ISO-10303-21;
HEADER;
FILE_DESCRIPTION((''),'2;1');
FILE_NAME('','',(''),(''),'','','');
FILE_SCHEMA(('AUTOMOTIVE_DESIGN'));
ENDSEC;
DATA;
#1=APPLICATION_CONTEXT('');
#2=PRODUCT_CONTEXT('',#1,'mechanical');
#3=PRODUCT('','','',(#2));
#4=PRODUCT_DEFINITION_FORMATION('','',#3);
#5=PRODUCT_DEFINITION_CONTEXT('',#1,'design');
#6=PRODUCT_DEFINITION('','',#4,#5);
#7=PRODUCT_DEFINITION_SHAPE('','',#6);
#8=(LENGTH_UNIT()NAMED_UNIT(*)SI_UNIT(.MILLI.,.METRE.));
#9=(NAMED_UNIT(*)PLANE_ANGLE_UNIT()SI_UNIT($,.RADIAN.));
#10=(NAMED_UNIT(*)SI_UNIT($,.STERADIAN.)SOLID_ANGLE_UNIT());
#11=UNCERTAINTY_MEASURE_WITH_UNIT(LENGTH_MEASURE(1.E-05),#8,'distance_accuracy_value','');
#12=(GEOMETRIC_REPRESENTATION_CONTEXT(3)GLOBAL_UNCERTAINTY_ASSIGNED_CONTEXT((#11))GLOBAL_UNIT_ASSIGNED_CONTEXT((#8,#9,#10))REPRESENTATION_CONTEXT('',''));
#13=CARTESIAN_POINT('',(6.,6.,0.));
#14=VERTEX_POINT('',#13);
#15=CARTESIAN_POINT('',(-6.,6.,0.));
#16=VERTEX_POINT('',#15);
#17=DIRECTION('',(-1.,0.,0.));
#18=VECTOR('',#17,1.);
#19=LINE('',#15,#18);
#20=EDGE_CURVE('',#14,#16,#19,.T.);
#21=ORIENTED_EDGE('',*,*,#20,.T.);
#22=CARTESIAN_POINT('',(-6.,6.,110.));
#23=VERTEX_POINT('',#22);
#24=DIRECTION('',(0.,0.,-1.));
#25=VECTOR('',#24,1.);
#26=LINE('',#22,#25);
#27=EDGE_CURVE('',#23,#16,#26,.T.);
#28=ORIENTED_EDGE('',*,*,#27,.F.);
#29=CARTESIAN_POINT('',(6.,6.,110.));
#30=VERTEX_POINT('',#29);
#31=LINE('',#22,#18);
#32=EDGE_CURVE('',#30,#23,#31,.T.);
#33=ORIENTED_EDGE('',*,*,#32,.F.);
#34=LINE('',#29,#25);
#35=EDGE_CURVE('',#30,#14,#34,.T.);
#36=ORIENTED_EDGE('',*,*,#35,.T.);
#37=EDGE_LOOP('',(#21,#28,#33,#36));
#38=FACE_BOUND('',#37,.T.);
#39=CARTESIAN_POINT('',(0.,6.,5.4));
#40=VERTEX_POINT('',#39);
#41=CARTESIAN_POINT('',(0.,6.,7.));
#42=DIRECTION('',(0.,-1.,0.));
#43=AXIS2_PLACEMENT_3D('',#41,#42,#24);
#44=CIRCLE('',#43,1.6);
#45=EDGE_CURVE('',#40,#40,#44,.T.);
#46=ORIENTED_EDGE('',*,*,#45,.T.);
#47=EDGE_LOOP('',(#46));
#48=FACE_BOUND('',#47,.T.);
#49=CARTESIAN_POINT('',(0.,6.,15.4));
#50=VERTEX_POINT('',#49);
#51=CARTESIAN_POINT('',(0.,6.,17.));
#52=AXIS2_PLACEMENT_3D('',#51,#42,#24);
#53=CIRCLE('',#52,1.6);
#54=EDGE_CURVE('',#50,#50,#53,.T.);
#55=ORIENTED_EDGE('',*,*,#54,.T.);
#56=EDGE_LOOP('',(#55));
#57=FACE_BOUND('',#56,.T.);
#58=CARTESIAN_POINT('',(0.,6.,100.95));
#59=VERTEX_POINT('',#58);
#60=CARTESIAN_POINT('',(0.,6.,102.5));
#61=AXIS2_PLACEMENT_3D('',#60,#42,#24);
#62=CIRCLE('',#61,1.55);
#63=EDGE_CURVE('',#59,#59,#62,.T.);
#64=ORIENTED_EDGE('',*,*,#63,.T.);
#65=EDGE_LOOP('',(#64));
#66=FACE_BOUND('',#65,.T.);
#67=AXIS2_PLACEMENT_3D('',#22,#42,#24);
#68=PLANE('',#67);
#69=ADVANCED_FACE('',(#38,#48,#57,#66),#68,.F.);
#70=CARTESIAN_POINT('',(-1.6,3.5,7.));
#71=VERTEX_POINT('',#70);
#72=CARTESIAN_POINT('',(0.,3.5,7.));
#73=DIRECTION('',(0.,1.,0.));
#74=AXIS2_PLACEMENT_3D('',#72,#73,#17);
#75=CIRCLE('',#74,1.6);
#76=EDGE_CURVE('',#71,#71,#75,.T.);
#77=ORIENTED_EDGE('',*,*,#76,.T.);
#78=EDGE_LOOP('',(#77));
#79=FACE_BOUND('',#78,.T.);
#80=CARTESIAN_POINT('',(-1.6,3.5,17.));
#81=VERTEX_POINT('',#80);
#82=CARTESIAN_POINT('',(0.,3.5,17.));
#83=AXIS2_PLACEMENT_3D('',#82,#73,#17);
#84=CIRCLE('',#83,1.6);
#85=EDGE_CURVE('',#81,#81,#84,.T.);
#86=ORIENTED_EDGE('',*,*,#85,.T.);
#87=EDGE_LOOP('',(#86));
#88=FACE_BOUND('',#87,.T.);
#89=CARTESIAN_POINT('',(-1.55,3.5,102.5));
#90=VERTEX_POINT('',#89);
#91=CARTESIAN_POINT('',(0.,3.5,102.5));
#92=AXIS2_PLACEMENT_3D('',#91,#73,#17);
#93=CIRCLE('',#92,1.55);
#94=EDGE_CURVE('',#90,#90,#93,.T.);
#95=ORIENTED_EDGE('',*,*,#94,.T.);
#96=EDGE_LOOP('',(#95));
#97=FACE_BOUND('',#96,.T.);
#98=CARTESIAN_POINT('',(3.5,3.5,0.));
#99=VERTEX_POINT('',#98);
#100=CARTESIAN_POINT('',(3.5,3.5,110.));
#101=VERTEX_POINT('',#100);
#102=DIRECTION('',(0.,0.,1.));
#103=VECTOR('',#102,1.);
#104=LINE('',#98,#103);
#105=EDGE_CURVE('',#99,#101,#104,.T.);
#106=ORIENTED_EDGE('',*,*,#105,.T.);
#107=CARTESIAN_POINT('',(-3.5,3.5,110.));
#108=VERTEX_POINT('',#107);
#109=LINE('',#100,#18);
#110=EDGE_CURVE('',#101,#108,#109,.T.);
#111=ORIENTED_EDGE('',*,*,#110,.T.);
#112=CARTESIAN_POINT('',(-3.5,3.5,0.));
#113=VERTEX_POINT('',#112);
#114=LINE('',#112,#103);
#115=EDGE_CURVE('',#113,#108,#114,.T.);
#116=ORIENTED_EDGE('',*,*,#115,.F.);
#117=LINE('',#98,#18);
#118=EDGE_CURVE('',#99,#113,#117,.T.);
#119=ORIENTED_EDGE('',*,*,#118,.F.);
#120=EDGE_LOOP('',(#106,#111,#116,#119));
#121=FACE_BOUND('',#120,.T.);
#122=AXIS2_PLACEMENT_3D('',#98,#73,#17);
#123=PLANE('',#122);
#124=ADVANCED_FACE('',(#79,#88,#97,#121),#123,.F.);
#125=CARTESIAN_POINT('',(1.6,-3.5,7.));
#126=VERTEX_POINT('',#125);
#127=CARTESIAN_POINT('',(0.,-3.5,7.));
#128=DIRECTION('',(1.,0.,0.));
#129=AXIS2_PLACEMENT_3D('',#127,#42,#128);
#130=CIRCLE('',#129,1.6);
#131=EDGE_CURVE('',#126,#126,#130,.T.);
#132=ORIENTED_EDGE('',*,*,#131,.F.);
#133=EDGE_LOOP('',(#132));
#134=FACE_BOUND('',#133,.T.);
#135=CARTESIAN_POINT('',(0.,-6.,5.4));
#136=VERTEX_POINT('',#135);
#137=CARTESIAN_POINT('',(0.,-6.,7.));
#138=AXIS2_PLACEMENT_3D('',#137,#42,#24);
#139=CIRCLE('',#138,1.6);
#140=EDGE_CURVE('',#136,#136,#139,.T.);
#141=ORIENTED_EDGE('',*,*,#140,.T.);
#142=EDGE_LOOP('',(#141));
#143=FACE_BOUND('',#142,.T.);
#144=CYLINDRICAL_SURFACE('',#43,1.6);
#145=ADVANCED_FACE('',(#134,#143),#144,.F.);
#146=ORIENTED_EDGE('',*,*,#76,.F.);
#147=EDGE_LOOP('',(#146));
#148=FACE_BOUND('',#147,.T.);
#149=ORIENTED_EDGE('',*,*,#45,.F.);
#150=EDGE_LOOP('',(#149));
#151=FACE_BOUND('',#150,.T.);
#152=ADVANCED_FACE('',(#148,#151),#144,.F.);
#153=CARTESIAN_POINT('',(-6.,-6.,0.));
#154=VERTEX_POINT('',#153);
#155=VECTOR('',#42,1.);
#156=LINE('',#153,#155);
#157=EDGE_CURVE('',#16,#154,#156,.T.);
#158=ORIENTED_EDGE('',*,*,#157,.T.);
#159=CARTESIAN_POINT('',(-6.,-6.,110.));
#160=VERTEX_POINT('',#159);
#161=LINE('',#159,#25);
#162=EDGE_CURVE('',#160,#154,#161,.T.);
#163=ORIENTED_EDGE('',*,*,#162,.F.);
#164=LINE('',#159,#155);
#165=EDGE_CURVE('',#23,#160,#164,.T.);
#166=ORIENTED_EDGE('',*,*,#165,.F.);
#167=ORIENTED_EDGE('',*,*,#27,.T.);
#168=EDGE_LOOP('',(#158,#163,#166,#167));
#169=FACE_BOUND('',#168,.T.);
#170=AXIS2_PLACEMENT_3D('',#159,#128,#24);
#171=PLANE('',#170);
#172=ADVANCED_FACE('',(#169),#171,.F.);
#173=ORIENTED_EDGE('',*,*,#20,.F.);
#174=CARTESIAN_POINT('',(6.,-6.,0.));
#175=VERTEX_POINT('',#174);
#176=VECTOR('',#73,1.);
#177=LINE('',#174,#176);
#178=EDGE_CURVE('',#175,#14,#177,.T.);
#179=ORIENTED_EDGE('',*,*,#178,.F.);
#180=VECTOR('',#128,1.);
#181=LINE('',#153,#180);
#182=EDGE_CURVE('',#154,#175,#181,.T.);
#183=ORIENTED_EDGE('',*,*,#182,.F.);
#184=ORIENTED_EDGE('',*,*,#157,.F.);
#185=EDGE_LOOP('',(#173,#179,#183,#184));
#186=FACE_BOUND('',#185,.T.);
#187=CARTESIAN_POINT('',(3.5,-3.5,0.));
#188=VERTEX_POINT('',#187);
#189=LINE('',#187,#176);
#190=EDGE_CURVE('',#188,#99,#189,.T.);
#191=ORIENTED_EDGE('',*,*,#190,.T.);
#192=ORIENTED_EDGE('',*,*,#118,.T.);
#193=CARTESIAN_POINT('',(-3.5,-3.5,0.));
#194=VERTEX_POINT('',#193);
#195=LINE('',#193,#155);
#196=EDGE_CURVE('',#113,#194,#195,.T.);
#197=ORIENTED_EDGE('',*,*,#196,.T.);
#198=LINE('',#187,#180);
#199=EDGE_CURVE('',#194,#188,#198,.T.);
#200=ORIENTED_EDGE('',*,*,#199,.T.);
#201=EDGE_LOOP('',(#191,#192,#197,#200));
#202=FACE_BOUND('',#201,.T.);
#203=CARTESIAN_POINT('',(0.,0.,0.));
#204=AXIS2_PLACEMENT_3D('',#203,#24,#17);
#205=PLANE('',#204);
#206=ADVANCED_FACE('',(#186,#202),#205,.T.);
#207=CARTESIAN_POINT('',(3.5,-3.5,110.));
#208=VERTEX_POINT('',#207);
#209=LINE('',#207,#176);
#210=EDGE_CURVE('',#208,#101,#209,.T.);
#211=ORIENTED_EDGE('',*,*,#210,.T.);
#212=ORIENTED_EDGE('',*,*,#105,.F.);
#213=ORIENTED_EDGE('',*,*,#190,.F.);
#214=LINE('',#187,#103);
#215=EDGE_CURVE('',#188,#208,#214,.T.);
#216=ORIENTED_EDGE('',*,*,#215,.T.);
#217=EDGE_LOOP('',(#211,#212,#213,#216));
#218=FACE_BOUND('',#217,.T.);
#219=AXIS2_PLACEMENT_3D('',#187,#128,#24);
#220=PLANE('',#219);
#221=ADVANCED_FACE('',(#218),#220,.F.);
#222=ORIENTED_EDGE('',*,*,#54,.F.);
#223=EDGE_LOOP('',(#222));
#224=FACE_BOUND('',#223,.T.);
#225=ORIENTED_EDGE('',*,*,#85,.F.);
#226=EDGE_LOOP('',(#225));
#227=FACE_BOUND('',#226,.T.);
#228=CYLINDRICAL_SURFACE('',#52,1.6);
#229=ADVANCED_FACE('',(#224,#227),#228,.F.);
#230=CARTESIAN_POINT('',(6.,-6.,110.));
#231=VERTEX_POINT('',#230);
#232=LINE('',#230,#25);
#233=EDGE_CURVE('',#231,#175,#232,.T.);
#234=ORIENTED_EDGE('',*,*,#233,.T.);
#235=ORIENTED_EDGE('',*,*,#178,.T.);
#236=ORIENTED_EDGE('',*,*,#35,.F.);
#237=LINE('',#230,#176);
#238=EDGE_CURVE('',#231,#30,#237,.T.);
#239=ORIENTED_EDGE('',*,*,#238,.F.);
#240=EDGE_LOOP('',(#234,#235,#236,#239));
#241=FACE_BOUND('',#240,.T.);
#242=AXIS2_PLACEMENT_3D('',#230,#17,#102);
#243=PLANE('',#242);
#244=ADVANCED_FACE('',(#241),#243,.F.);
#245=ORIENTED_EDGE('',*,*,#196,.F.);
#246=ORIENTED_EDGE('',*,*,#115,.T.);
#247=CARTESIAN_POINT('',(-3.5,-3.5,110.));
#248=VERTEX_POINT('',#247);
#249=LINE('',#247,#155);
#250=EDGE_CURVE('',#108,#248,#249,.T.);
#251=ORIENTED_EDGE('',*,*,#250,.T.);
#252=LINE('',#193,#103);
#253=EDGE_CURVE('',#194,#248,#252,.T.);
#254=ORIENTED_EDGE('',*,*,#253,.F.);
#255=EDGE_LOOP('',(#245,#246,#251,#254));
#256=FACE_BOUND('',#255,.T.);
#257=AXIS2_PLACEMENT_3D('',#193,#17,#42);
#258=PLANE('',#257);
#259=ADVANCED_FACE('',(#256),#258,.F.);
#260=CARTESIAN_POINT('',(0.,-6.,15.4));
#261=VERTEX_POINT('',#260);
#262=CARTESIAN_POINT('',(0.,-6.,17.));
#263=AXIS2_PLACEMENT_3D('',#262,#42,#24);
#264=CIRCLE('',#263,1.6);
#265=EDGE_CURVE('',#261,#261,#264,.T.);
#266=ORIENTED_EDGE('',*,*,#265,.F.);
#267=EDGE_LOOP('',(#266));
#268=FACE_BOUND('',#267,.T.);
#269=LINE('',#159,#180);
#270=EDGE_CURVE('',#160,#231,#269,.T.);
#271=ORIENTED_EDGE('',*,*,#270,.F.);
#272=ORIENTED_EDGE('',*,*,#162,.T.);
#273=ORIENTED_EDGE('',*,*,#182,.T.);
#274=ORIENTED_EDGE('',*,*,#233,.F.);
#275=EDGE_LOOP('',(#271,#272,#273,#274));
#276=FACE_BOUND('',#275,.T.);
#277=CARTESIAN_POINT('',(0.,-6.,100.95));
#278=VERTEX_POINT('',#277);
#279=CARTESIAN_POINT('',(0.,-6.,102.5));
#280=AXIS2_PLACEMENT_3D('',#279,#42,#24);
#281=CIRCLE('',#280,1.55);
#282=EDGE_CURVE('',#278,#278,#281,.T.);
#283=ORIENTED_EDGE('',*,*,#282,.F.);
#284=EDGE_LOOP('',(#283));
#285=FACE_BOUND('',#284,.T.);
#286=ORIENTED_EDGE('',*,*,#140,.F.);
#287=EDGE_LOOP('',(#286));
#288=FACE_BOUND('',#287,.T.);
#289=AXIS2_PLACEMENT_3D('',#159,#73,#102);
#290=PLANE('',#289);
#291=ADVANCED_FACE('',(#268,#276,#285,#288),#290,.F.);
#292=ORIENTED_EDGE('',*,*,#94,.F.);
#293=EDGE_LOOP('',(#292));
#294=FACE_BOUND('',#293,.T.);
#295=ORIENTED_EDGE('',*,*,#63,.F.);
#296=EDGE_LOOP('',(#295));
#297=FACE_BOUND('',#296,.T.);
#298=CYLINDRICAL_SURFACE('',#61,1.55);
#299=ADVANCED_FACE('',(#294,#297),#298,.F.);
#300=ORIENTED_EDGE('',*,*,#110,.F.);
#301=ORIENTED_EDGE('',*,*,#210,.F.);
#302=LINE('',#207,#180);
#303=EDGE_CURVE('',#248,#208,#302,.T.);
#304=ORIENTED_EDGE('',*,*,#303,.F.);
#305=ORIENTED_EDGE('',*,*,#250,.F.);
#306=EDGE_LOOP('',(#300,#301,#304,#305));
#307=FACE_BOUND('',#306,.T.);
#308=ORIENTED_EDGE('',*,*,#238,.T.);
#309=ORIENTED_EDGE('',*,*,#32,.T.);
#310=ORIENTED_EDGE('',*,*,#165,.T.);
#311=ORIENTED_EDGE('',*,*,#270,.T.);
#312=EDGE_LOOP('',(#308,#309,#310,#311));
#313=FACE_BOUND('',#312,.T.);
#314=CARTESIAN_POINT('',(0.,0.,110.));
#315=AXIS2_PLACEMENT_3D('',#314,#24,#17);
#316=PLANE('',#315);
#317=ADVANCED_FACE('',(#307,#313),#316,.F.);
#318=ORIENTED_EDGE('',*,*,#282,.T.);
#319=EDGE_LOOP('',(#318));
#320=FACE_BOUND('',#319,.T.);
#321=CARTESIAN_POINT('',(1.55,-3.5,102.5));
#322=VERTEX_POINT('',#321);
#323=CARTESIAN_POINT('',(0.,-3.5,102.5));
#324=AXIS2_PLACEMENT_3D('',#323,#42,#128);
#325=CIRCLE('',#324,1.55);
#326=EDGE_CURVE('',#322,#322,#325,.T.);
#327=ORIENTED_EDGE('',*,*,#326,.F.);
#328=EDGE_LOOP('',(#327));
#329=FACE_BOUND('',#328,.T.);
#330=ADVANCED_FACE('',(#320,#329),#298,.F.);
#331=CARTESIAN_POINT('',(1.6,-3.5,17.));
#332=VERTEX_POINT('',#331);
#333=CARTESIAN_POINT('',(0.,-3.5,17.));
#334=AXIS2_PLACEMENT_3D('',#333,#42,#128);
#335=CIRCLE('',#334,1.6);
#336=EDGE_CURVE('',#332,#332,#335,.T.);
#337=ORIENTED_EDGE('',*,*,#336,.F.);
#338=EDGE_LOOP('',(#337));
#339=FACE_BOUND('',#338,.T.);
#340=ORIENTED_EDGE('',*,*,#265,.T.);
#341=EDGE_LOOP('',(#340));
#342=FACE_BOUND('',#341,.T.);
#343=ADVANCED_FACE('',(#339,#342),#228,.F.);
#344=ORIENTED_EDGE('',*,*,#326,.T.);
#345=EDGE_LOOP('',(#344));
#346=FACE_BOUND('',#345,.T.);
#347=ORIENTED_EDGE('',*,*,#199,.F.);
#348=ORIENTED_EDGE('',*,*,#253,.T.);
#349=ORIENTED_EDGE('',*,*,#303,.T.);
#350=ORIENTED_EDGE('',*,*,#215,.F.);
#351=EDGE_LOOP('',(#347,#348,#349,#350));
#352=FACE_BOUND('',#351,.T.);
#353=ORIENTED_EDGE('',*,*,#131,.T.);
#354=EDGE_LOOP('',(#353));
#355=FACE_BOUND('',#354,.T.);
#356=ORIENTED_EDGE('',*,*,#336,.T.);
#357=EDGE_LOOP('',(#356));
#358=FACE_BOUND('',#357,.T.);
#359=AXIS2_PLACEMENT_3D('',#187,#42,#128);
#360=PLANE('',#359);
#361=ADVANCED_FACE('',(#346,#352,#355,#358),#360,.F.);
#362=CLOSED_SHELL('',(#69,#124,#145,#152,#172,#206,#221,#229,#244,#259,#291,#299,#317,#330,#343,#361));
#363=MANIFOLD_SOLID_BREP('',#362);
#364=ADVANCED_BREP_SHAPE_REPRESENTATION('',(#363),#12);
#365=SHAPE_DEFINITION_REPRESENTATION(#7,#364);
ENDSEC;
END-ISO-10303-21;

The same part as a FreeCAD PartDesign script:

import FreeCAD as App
import Part
import Sketcher
Q = App.Units.Quantity


def add_polygon(sketch, points):
    """Adds a closed chain of lines whose ends are joined by coincident constraints."""
    first, n = sketch.GeometryCount, len(points)
    for a, b in zip(points, points[1:] + points[:1]):
        sketch.addGeometry(Part.LineSegment(App.Vector(*a, 0), App.Vector(*b, 0)), False)
    for i in range(n):
        sketch.addConstraint(Sketcher.Constraint("Coincident", first + i, 2, first + (i + 1) % n, 1))

doc = App.newDocument("Part")
body = doc.addObject("PartDesign::Body", "Body")

sketch1 = body.newObject("Sketcher::SketchObject", "Sketch")
sketch1.AttachmentSupport = (doc.getObject("XY_Plane"), [""])
sketch1.MapMode = "FlatFace"
add_polygon(sketch1, [(-6, 6), (-6, -6), (6, -6), (6, 6)])
sketch1.addConstraint(Sketcher.Constraint("Vertical", 0))
sketch1.addConstraint(Sketcher.Constraint("Horizontal", 1))
sketch1.addConstraint(Sketcher.Constraint("Vertical", 2))
sketch1.addConstraint(Sketcher.Constraint("Horizontal", 3))
sketch1.addConstraint(Sketcher.Constraint("Symmetric", 0, 2, 2, 2, -1, 1))
sketch1.addConstraint(Sketcher.Constraint("Equal", 3, 0))
sketch1.addConstraint(Sketcher.Constraint("DistanceX", 1, 1, 1, 2, Q("12 mm")))
pad1 = body.newObject("PartDesign::Pad", "Pad")
pad1.Profile = sketch1
pad1.Length = 110

sketch2 = body.newObject("Sketcher::SketchObject", "Sketch001")
sketch2.AttachmentSupport = (doc.getObject("XY_Plane"), [""])
sketch2.MapMode = "FlatFace"
sketch2.AttachmentOffset = App.Placement(App.Vector(0, 0, 110), App.Rotation())
add_polygon(sketch2, [(-4, 4), (-4, -4), (4, -4), (4, 4)])
sketch2.addConstraint(Sketcher.Constraint("Vertical", 0))
sketch2.addConstraint(Sketcher.Constraint("Horizontal", 1))
sketch2.addConstraint(Sketcher.Constraint("Vertical", 2))
sketch2.addConstraint(Sketcher.Constraint("Horizontal", 3))
sketch2.addConstraint(Sketcher.Constraint("Symmetric", 0, 2, 2, 2, -1, 1))
sketch2.addConstraint(Sketcher.Constraint("Equal", 3, 0))
sketch2.addConstraint(Sketcher.Constraint("DistanceX", 1, 1, 1, 2, Q("7 mm")))
pocket1 = body.newObject("PartDesign::Pocket", "Pocket")
pocket1.Profile = sketch2
pocket1.Type = "ThroughAll"

sketch3 = body.newObject("Sketcher::SketchObject", "Sketch002")
sketch3.AttachmentSupport = (doc.getObject("XZ_Plane"), [""])
sketch3.MapMode = "FlatFace"
sketch3.AttachmentOffset = App.Placement(App.Vector(0, 0, 6), App.Rotation())
sketch3.addGeometry(Part.Circle(App.Vector(0, 7, 0), App.Vector(0, 0, 1), 1.6), False)
sketch3.addGeometry(Part.Circle(App.Vector(0, 17, 0), App.Vector(0, 0, 1), 1.6), False)
sketch3.addGeometry(Part.Circle(App.Vector(0, 102.5, 0), App.Vector(0, 0, 1), 1.6), False)
sketch3.addConstraint(Sketcher.Constraint("Equal", 0, 1))
sketch3.addConstraint(Sketcher.Constraint("PointOnObject", 0, 3, -2))
sketch3.addConstraint(Sketcher.Constraint("PointOnObject", 1, 3, -2))
sketch3.addConstraint(Sketcher.Constraint("PointOnObject", 2, 3, -2))
sketch3.addConstraint(Sketcher.Constraint("Diameter", 0, Q("3.2 mm")))
sketch3.addConstraint(Sketcher.Constraint("Diameter", 2, Q("3.1 mm")))
sketch3.addConstraint(Sketcher.Constraint("DistanceY", -1, 1, 0, 3, Q("7 mm")))
sketch3.addConstraint(Sketcher.Constraint("DistanceY", -1, 1, 1, 3, Q("17 mm")))
sketch3.addConstraint(Sketcher.Constraint("DistanceY", -1, 1, 2, 3, Q("102.5 mm")))
pocket2 = body.newObject("PartDesign::Pocket", "Pocket001")
pocket2.Profile = sketch3
pocket2.Type = "ThroughAll"

doc.recompute()
